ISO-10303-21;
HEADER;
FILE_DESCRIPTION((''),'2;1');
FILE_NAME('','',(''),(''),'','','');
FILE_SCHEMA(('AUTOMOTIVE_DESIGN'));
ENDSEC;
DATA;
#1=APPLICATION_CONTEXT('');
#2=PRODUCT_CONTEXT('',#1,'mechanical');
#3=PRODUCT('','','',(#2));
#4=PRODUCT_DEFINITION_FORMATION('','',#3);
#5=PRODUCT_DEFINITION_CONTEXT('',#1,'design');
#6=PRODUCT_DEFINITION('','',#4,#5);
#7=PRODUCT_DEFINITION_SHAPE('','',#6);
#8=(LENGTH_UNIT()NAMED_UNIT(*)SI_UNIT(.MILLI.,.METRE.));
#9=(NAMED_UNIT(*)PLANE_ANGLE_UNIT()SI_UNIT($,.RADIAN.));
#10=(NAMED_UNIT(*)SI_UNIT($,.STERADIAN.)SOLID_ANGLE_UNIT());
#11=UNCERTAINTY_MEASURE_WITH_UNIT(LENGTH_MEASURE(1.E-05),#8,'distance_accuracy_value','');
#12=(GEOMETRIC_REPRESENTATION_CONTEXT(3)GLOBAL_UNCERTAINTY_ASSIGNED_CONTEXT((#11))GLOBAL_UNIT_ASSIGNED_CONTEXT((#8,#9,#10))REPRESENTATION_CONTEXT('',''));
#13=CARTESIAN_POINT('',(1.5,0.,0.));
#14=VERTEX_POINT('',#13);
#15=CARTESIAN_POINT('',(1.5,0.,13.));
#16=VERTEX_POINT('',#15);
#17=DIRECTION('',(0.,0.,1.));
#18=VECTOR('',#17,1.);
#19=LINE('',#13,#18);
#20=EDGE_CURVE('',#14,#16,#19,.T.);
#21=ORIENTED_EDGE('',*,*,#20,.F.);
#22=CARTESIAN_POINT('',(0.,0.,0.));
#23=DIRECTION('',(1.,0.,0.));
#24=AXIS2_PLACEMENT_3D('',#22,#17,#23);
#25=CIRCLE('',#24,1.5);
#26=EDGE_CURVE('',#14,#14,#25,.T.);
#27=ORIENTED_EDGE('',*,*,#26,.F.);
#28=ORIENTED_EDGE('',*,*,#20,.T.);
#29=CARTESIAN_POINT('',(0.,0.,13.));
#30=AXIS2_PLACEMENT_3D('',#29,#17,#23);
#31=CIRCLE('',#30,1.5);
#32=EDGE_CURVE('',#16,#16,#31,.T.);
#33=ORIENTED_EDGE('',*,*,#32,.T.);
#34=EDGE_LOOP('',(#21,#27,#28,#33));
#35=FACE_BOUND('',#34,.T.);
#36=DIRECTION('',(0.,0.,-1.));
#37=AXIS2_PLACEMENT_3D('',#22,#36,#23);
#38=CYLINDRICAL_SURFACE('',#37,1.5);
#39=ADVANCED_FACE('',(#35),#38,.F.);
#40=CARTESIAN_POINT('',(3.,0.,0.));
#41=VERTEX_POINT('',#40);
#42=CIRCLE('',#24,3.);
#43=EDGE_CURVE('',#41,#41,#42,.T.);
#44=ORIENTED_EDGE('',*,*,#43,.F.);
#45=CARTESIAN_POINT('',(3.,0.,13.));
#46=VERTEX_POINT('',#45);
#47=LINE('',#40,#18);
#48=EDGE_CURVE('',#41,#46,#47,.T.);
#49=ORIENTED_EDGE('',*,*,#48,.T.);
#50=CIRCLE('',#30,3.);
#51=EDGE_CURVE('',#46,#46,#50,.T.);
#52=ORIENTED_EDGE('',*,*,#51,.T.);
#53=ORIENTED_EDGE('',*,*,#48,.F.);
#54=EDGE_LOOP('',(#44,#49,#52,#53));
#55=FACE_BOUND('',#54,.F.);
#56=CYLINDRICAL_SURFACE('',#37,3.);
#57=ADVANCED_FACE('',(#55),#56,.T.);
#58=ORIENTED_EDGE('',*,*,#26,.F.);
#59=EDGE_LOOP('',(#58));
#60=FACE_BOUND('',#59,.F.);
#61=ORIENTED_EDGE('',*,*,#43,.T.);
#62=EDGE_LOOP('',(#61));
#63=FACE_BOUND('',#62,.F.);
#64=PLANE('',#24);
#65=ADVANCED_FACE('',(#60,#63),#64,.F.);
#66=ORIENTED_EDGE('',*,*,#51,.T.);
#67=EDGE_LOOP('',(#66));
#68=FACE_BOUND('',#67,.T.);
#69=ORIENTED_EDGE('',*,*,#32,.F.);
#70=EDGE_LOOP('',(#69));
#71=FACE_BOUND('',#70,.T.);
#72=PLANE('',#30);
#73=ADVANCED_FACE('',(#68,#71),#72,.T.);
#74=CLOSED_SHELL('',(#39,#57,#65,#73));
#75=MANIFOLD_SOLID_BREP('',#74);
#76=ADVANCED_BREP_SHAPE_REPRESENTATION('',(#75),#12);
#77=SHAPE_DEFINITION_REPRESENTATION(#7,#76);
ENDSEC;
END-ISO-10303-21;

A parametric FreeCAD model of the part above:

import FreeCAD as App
import Part
import Sketcher

V = App.Vector

doc = App.newDocument("Part")
params = doc.addObject("Spreadsheet::Sheet", "Params")
for row, (alias, value) in enumerate([
    ("sketch1_diameter", "6 mm"),
    ("sketch1_diameter2", "3 mm"),
    ("pad1_length", "13 mm"),
], start=1):
    params.set(f"A{row}", alias)
    params.set(f"B{row}", "=" + value)
    params.setAlias(f"B{row}", alias)

body = doc.addObject("PartDesign::Body", "Body")

# Sketch on XY plane
sketch1 = doc.addObject("Sketcher::SketchObject", "Sketch")
body.addObject(sketch1)
sketch1.AttachmentSupport = (doc.XY_Plane, [""])
sketch1.MapMode = "FlatFace"
sketch1.addGeometry([
    Part.Circle(V(0, 0, 0), V(0, 0, 1), 3),
    Part.Circle(V(0, 0, 0), V(0, 0, 1), 1.5),
], False)
sketch1.addConstraint([
    Sketcher.Constraint("Coincident", 0, 3, -1, 1),
    Sketcher.Constraint("Coincident", 1, 3, -1, 1),
    Sketcher.Constraint("Diameter", 0, 6.0),
    Sketcher.Constraint("Diameter", 1, 3.0),
])
sketch1.setExpression("Constraints[2]", "Params.sketch1_diameter")
sketch1.setExpression("Constraints[3]", "Params.sketch1_diameter2")
pad1 = doc.addObject("PartDesign::Pad", "Pad")
body.addObject(pad1)
pad1.Profile = sketch1
pad1.setExpression("Length", "Params.pad1_length")

doc.recompute()
